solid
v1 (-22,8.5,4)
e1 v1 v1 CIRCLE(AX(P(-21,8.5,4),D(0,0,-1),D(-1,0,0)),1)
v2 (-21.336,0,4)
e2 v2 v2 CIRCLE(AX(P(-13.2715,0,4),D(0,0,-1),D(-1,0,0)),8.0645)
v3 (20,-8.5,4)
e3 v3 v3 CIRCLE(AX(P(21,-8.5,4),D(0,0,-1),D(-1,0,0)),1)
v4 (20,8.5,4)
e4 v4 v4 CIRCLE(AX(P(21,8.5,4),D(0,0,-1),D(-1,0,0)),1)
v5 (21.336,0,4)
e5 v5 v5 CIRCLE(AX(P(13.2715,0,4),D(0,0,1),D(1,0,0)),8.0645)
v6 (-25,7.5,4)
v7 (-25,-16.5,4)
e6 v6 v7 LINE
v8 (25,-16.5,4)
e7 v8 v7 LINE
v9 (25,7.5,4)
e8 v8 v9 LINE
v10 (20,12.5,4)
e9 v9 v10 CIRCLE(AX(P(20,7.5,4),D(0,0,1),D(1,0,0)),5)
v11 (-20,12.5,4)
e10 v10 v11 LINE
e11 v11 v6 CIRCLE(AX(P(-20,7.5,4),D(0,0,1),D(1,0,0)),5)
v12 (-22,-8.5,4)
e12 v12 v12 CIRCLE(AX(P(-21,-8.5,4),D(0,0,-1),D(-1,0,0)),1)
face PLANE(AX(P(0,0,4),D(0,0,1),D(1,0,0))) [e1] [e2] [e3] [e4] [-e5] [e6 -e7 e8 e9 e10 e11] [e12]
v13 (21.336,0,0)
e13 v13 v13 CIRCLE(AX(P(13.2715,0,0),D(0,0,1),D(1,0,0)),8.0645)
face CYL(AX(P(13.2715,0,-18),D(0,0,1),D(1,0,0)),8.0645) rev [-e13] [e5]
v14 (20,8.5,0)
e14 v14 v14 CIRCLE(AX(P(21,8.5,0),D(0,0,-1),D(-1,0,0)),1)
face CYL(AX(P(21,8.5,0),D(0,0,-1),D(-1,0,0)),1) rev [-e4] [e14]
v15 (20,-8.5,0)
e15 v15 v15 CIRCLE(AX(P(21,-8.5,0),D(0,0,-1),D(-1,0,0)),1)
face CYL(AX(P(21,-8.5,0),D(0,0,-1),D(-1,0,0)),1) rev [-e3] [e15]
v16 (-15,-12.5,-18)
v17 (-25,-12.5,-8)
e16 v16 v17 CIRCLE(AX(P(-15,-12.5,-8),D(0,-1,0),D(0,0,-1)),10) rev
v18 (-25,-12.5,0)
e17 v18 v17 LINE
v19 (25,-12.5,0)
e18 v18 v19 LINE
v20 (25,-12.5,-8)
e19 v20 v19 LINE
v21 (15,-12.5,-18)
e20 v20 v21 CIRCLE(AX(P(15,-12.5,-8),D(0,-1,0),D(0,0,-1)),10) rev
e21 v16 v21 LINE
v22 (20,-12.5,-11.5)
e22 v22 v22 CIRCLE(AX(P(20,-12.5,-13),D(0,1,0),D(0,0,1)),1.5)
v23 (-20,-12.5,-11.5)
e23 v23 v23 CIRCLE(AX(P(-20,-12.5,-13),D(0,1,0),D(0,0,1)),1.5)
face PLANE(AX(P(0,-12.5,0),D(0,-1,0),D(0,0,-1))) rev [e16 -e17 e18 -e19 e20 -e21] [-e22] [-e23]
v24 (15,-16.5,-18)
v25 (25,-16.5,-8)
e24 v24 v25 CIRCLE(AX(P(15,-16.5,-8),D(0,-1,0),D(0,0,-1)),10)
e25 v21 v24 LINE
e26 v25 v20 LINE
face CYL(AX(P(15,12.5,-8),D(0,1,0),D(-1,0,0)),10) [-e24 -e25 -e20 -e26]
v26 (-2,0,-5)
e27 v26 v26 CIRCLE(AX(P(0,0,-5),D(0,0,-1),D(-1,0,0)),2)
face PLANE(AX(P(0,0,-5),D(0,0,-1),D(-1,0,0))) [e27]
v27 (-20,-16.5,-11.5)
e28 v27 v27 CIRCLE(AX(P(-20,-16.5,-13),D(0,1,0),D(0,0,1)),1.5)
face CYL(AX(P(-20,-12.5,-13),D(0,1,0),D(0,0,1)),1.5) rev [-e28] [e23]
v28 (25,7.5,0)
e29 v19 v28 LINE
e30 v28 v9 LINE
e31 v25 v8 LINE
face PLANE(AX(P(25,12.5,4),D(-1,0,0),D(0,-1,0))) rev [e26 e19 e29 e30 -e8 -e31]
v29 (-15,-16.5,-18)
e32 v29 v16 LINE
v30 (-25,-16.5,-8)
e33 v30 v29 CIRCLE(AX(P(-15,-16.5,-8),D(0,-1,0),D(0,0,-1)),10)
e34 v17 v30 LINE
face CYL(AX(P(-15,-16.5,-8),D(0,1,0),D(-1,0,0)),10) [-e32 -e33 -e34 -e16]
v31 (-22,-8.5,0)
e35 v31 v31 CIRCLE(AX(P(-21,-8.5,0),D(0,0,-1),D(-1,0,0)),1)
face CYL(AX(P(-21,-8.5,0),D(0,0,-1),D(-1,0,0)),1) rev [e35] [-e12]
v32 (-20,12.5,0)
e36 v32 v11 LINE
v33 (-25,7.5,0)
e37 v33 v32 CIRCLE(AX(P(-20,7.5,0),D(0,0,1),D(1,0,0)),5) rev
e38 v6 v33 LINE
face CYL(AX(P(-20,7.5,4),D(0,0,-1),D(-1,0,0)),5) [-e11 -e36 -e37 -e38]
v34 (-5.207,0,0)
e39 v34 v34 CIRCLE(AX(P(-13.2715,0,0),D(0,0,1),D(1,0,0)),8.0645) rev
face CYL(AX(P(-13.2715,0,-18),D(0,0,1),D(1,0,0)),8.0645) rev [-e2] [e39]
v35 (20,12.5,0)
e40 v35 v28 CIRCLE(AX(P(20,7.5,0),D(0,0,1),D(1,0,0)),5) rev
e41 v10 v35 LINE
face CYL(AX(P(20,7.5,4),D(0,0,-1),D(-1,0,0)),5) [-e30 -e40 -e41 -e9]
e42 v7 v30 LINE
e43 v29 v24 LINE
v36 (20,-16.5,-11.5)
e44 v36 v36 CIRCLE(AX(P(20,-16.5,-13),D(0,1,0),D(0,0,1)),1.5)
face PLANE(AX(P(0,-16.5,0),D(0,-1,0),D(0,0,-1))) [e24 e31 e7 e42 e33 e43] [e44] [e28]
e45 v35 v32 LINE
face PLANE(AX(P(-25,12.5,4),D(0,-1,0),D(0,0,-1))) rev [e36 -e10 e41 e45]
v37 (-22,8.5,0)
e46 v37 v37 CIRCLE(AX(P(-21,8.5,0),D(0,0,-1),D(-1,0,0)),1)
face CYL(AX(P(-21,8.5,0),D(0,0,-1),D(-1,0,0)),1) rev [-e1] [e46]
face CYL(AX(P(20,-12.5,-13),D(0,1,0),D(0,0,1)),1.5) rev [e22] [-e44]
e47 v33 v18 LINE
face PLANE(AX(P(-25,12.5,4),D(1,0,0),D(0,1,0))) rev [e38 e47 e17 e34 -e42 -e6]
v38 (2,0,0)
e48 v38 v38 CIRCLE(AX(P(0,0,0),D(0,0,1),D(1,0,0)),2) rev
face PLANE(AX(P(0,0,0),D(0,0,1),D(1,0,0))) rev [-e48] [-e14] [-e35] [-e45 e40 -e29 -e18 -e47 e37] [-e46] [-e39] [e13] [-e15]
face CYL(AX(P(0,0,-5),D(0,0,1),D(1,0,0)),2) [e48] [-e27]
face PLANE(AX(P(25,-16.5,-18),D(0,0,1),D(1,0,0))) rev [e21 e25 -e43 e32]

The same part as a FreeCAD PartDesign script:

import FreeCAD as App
import Part
import Sketcher
from FreeCAD import Vector


def edges_at(feature, points):
    """Names of the edges that pass closest to the given points."""
    edges = feature.Shape.Edges
    near = lambda p: min(range(len(edges)), key=lambda i: edges[i].distToShape(Part.Vertex(*p))[0])
    return sorted({f"Edge{near(p) + 1}" for p in points})

doc = App.newDocument("Part")
body = doc.addObject("PartDesign::Body", "Body")

sketch1 = doc.addObject("Sketcher::SketchObject", "Sketch")
body.addObject(sketch1)
sketch1.AttachmentSupport = (doc.XY_Plane, [""])
sketch1.MapMode = "FlatFace"
sketch1.addGeometry(Part.LineSegment(Vector(-25, 12, 0), Vector(-25, -12, 0)), False)
sketch1.addGeometry(Part.LineSegment(Vector(-25, -12, 0), Vector(25, -12, 0)), False)
sketch1.addGeometry(Part.LineSegment(Vector(25, -12, 0), Vector(25, 12, 0)), False)
sketch1.addGeometry(Part.LineSegment(Vector(25, 12, 0), Vector(-25, 12, 0)), False)
sketch1.addConstraint(Sketcher.Constraint("Coincident", 0, 2, 1, 1))
sketch1.addConstraint(Sketcher.Constraint("Coincident", 1, 2, 2, 1))
sketch1.addConstraint(Sketcher.Constraint("Coincident", 2, 2, 3, 1))
sketch1.addConstraint(Sketcher.Constraint("Coincident", 3, 2, 0, 1))
sketch1.addConstraint(Sketcher.Constraint("Vertical", 0))
sketch1.addConstraint(Sketcher.Constraint("Horizontal", 1))
sketch1.addConstraint(Sketcher.Constraint("Vertical", 2))
sketch1.addConstraint(Sketcher.Constraint("Horizontal", 3))
sketch1.addConstraint(Sketcher.Constraint("Symmetric", 0, 2, 2, 2, -1, 1))
sketch1.addConstraint(Sketcher.Constraint("DistanceX", 1, 1, 1, 2, 50.0))
sketch1.addConstraint(Sketcher.Constraint("DistanceY", 0, 2, 0, 1, 25.0))
pad1 = doc.addObject("PartDesign::Pad", "Pad")
body.addObject(pad1)
pad1.Profile = sketch1
pad1.Length = 4

sketch2 = doc.addObject("Sketcher::SketchObject", "Sketch001")
body.addObject(sketch2)
sketch2.AttachmentSupport = (doc.XZ_Plane, [""])
sketch2.MapMode = "FlatFace"
sketch2.AttachmentOffset = App.Placement(Vector(0, 0, 12.5), App.Rotation())
sketch2.addGeometry(Part.LineSegment(Vector(-25, 4, 0), Vector(-25, -18, 0)), False)
sketch2.addGeometry(Part.LineSegment(Vector(-25, -18, 0), Vector(25, -18, 0)), False)
sketch2.addGeometry(Part.LineSegment(Vector(25, -18, 0), Vector(25, 4, 0)), False)
sketch2.addGeometry(Part.LineSegment(Vector(25, 4, 0), Vector(-25, 4, 0)), False)
sketch2.addConstraint(Sketcher.Constraint("Coincident", 0, 2, 1, 1))
sketch2.addConstraint(Sketcher.Constraint("Coincident", 1, 2, 2, 1))
sketch2.addConstraint(Sketcher.Constraint("Coincident", 2, 2, 3, 1))
sketch2.addConstraint(Sketcher.Constraint("Coincident", 3, 2, 0, 1))
sketch2.addConstraint(Sketcher.Constraint("Vertical", 0))
sketch2.addConstraint(Sketcher.Constraint("Horizontal", 1))
sketch2.addConstraint(Sketcher.Constraint("Vertical", 2))
sketch2.addConstraint(Sketcher.Constraint("Horizontal", 3))
sketch2.addConstraint(Sketcher.Constraint("DistanceX", 1, 1, 1, 2, 50.0))
sketch2.addConstraint(Sketcher.Constraint("DistanceY", 0, 2, 0, 1, 22.0))
sketch2.addConstraint(Sketcher.Constraint("DistanceX", 0, 2, -1, 1, 25.0))
sketch2.addConstraint(Sketcher.Constraint("DistanceY", 0, 2, -1, 1, 18.0))
pad2 = doc.addObject("PartDesign::Pad", "Pad001")
body.addObject(pad2)
pad2.Profile = sketch2
pad2.Length = 4

sketch3 = doc.addObject("Sketcher::SketchObject", "Sketch002")
body.addObject(sketch3)
sketch3.AttachmentSupport = (doc.XY_Plane, [""])
sketch3.MapMode = "FlatFace"
sketch3.AttachmentOffset = App.Placement(Vector(0, 0, 4), App.Rotation())
sketch3.addGeometry(Part.Circle(Vector(13, 0, 0), Vector(0, 0, 1), 8), False)
sketch3.addConstraint(Sketcher.Constraint("PointOnObject", 0, 3, -1))
sketch3.addConstraint(Sketcher.Constraint("Diameter", 0, 16.129))
sketch3.addConstraint(Sketcher.Constraint("DistanceX", -1, 1, 0, 3, 13.2715))
pocket1 = doc.addObject("PartDesign::Pocket", "Pocket")
body.addObject(pocket1)
pocket1.Profile = sketch3
pocket1.Type = "ThroughAll"
doc.recompute()

mirrored = doc.addObject("PartDesign::Mirrored", "Mirrored")
body.addObject(mirrored)
mirrored.Originals = [pocket1]
mirrored.MirrorPlane = (doc.YZ_Plane, [""])
body.Tip = mirrored

sketch4 = doc.addObject("Sketcher::SketchObject", "Sketch003")
body.addObject(sketch4)
sketch4.AttachmentSupport = (doc.XY_Plane, [""])
sketch4.MapMode = "FlatFace"
sketch4.addGeometry(Part.Circle(Vector(0, 0, 0), Vector(0, 0, 1), 2), False)
sketch4.addConstraint(Sketcher.Constraint("Coincident", 0, 3, -1, 1))
sketch4.addConstraint(Sketcher.Constraint("Diameter", 0, 4.0))
pad3 = doc.addObject("PartDesign::Pad", "Pad002")
body.addObject(pad3)
pad3.Profile = sketch4
pad3.Length = 5
pad3.Reversed = True

sketch5 = doc.addObject("Sketcher::SketchObject", "Sketch004")
body.addObject(sketch5)
sketch5.AttachmentSupport = (doc.XZ_Plane, [""])
sketch5.MapMode = "FlatFace"
sketch5.AttachmentOffset = App.Placement(Vector(0, 0, 12.5), App.Rotation())
sketch5.addGeometry(Part.Circle(Vector(-20, -13, 0), Vector(0, 0, 1), 1.5), False)
sketch5.addConstraint(Sketcher.Constraint("Diameter", 0, 3.0))
sketch5.addConstraint(Sketcher.Constraint("DistanceX", 0, 3, -1, 1, 20.0))
sketch5.addConstraint(Sketcher.Constraint("DistanceY", 0, 3, -1, 1, 13.0))
doc.recompute()
hole = doc.addObject("PartDesign::Hole", "Hole")
body.addObject(hole)
hole.Profile = sketch5
hole.ThreadType = "None"
hole.Diameter = 3
hole.DepthType = "ThroughAll"
hole.Reversed = True
doc.recompute()

mirrored2 = doc.addObject("PartDesign::Mirrored", "Mirrored001")
body.addObject(mirrored2)
mirrored2.Originals = [hole]
mirrored2.MirrorPlane = (doc.YZ_Plane, [""])
body.Tip = mirrored2

sketch6 = doc.addObject("Sketcher::SketchObject", "Sketch005")
body.addObject(sketch6)
sketch6.AttachmentSupport = (doc.XY_Plane, [""])
sketch6.MapMode = "FlatFace"
sketch6.addGeometry(Part.Circle(Vector(21, 8.5, 0), Vector(0, 0, 1), 1), False)
sketch6.addConstraint(Sketcher.Constraint("Diameter", 0, 2.0))
sketch6.addConstraint(Sketcher.Constraint("DistanceX", -1, 1, 0, 3, 21.0))
sketch6.addConstraint(Sketcher.Constraint("DistanceY", -1, 1, 0, 3, 8.5))
doc.recompute()
hole2 = doc.addObject("PartDesign::Hole", "Hole001")
body.addObject(hole2)
hole2.Profile = sketch6
hole2.ThreadType = "None"
hole2.Diameter = 2
hole2.DepthType = "ThroughAll"
hole2.Reversed = True
doc.recompute()

mirrored3 = doc.addObject("PartDesign::Mirrored", "Mirrored002")
body.addObject(mirrored3)
mirrored3.Originals = [hole2]
mirrored3.MirrorPlane = (doc.XZ_Plane, [""])
body.Tip = mirrored3
doc.recompute()

mirrored4 = doc.addObject("PartDesign::Mirrored", "Mirrored003")
body.addObject(mirrored4)
mirrored4.Originals = [hole2]
mirrored4.MirrorPlane = (doc.YZ_Plane, [""])
body.Tip = mirrored4

sketch7 = doc.addObject("Sketcher::SketchObject", "Sketch006")
body.addObject(sketch7)
sketch7.AttachmentSupport = (doc.XY_Plane, [""])
sketch7.MapMode = "FlatFace"
sketch7.addGeometry(Part.Circle(Vector(-21, -8.5, 0), Vector(0, 0, 1), 1), False)
sketch7.addConstraint(Sketcher.Constraint("Diameter", 0, 2.0))
sketch7.addConstraint(Sketcher.Constraint("DistanceX", 0, 3, -1, 1, 21.0))
sketch7.addConstraint(Sketcher.Constraint("DistanceY", 0, 3, -1, 1, 8.5))
doc.recompute()
hole3 = doc.addObject("PartDesign::Hole", "Hole002")
body.addObject(hole3)
hole3.Profile = sketch7
hole3.ThreadType = "None"
hole3.Diameter = 2
hole3.DepthType = "ThroughAll"
hole3.Reversed = True
doc.recompute()

fillet = doc.addObject("PartDesign::Fillet", "Fillet")
body.addObject(fillet)
fillet.Base = (hole3, edges_at(hole3, [(-25, -14.5, -18), (25, -14.5, -18)]))
fillet.Radius = 10
doc.recompute()

fillet2 = doc.addObject("PartDesign::Fillet", "Fillet001")
body.addObject(fillet2)
fillet2.Base = (fillet, edges_at(fillet, [(-25, 12.5, 2), (25, 12.5, 2)]))
fillet2.Radius = 5

doc.recompute()
